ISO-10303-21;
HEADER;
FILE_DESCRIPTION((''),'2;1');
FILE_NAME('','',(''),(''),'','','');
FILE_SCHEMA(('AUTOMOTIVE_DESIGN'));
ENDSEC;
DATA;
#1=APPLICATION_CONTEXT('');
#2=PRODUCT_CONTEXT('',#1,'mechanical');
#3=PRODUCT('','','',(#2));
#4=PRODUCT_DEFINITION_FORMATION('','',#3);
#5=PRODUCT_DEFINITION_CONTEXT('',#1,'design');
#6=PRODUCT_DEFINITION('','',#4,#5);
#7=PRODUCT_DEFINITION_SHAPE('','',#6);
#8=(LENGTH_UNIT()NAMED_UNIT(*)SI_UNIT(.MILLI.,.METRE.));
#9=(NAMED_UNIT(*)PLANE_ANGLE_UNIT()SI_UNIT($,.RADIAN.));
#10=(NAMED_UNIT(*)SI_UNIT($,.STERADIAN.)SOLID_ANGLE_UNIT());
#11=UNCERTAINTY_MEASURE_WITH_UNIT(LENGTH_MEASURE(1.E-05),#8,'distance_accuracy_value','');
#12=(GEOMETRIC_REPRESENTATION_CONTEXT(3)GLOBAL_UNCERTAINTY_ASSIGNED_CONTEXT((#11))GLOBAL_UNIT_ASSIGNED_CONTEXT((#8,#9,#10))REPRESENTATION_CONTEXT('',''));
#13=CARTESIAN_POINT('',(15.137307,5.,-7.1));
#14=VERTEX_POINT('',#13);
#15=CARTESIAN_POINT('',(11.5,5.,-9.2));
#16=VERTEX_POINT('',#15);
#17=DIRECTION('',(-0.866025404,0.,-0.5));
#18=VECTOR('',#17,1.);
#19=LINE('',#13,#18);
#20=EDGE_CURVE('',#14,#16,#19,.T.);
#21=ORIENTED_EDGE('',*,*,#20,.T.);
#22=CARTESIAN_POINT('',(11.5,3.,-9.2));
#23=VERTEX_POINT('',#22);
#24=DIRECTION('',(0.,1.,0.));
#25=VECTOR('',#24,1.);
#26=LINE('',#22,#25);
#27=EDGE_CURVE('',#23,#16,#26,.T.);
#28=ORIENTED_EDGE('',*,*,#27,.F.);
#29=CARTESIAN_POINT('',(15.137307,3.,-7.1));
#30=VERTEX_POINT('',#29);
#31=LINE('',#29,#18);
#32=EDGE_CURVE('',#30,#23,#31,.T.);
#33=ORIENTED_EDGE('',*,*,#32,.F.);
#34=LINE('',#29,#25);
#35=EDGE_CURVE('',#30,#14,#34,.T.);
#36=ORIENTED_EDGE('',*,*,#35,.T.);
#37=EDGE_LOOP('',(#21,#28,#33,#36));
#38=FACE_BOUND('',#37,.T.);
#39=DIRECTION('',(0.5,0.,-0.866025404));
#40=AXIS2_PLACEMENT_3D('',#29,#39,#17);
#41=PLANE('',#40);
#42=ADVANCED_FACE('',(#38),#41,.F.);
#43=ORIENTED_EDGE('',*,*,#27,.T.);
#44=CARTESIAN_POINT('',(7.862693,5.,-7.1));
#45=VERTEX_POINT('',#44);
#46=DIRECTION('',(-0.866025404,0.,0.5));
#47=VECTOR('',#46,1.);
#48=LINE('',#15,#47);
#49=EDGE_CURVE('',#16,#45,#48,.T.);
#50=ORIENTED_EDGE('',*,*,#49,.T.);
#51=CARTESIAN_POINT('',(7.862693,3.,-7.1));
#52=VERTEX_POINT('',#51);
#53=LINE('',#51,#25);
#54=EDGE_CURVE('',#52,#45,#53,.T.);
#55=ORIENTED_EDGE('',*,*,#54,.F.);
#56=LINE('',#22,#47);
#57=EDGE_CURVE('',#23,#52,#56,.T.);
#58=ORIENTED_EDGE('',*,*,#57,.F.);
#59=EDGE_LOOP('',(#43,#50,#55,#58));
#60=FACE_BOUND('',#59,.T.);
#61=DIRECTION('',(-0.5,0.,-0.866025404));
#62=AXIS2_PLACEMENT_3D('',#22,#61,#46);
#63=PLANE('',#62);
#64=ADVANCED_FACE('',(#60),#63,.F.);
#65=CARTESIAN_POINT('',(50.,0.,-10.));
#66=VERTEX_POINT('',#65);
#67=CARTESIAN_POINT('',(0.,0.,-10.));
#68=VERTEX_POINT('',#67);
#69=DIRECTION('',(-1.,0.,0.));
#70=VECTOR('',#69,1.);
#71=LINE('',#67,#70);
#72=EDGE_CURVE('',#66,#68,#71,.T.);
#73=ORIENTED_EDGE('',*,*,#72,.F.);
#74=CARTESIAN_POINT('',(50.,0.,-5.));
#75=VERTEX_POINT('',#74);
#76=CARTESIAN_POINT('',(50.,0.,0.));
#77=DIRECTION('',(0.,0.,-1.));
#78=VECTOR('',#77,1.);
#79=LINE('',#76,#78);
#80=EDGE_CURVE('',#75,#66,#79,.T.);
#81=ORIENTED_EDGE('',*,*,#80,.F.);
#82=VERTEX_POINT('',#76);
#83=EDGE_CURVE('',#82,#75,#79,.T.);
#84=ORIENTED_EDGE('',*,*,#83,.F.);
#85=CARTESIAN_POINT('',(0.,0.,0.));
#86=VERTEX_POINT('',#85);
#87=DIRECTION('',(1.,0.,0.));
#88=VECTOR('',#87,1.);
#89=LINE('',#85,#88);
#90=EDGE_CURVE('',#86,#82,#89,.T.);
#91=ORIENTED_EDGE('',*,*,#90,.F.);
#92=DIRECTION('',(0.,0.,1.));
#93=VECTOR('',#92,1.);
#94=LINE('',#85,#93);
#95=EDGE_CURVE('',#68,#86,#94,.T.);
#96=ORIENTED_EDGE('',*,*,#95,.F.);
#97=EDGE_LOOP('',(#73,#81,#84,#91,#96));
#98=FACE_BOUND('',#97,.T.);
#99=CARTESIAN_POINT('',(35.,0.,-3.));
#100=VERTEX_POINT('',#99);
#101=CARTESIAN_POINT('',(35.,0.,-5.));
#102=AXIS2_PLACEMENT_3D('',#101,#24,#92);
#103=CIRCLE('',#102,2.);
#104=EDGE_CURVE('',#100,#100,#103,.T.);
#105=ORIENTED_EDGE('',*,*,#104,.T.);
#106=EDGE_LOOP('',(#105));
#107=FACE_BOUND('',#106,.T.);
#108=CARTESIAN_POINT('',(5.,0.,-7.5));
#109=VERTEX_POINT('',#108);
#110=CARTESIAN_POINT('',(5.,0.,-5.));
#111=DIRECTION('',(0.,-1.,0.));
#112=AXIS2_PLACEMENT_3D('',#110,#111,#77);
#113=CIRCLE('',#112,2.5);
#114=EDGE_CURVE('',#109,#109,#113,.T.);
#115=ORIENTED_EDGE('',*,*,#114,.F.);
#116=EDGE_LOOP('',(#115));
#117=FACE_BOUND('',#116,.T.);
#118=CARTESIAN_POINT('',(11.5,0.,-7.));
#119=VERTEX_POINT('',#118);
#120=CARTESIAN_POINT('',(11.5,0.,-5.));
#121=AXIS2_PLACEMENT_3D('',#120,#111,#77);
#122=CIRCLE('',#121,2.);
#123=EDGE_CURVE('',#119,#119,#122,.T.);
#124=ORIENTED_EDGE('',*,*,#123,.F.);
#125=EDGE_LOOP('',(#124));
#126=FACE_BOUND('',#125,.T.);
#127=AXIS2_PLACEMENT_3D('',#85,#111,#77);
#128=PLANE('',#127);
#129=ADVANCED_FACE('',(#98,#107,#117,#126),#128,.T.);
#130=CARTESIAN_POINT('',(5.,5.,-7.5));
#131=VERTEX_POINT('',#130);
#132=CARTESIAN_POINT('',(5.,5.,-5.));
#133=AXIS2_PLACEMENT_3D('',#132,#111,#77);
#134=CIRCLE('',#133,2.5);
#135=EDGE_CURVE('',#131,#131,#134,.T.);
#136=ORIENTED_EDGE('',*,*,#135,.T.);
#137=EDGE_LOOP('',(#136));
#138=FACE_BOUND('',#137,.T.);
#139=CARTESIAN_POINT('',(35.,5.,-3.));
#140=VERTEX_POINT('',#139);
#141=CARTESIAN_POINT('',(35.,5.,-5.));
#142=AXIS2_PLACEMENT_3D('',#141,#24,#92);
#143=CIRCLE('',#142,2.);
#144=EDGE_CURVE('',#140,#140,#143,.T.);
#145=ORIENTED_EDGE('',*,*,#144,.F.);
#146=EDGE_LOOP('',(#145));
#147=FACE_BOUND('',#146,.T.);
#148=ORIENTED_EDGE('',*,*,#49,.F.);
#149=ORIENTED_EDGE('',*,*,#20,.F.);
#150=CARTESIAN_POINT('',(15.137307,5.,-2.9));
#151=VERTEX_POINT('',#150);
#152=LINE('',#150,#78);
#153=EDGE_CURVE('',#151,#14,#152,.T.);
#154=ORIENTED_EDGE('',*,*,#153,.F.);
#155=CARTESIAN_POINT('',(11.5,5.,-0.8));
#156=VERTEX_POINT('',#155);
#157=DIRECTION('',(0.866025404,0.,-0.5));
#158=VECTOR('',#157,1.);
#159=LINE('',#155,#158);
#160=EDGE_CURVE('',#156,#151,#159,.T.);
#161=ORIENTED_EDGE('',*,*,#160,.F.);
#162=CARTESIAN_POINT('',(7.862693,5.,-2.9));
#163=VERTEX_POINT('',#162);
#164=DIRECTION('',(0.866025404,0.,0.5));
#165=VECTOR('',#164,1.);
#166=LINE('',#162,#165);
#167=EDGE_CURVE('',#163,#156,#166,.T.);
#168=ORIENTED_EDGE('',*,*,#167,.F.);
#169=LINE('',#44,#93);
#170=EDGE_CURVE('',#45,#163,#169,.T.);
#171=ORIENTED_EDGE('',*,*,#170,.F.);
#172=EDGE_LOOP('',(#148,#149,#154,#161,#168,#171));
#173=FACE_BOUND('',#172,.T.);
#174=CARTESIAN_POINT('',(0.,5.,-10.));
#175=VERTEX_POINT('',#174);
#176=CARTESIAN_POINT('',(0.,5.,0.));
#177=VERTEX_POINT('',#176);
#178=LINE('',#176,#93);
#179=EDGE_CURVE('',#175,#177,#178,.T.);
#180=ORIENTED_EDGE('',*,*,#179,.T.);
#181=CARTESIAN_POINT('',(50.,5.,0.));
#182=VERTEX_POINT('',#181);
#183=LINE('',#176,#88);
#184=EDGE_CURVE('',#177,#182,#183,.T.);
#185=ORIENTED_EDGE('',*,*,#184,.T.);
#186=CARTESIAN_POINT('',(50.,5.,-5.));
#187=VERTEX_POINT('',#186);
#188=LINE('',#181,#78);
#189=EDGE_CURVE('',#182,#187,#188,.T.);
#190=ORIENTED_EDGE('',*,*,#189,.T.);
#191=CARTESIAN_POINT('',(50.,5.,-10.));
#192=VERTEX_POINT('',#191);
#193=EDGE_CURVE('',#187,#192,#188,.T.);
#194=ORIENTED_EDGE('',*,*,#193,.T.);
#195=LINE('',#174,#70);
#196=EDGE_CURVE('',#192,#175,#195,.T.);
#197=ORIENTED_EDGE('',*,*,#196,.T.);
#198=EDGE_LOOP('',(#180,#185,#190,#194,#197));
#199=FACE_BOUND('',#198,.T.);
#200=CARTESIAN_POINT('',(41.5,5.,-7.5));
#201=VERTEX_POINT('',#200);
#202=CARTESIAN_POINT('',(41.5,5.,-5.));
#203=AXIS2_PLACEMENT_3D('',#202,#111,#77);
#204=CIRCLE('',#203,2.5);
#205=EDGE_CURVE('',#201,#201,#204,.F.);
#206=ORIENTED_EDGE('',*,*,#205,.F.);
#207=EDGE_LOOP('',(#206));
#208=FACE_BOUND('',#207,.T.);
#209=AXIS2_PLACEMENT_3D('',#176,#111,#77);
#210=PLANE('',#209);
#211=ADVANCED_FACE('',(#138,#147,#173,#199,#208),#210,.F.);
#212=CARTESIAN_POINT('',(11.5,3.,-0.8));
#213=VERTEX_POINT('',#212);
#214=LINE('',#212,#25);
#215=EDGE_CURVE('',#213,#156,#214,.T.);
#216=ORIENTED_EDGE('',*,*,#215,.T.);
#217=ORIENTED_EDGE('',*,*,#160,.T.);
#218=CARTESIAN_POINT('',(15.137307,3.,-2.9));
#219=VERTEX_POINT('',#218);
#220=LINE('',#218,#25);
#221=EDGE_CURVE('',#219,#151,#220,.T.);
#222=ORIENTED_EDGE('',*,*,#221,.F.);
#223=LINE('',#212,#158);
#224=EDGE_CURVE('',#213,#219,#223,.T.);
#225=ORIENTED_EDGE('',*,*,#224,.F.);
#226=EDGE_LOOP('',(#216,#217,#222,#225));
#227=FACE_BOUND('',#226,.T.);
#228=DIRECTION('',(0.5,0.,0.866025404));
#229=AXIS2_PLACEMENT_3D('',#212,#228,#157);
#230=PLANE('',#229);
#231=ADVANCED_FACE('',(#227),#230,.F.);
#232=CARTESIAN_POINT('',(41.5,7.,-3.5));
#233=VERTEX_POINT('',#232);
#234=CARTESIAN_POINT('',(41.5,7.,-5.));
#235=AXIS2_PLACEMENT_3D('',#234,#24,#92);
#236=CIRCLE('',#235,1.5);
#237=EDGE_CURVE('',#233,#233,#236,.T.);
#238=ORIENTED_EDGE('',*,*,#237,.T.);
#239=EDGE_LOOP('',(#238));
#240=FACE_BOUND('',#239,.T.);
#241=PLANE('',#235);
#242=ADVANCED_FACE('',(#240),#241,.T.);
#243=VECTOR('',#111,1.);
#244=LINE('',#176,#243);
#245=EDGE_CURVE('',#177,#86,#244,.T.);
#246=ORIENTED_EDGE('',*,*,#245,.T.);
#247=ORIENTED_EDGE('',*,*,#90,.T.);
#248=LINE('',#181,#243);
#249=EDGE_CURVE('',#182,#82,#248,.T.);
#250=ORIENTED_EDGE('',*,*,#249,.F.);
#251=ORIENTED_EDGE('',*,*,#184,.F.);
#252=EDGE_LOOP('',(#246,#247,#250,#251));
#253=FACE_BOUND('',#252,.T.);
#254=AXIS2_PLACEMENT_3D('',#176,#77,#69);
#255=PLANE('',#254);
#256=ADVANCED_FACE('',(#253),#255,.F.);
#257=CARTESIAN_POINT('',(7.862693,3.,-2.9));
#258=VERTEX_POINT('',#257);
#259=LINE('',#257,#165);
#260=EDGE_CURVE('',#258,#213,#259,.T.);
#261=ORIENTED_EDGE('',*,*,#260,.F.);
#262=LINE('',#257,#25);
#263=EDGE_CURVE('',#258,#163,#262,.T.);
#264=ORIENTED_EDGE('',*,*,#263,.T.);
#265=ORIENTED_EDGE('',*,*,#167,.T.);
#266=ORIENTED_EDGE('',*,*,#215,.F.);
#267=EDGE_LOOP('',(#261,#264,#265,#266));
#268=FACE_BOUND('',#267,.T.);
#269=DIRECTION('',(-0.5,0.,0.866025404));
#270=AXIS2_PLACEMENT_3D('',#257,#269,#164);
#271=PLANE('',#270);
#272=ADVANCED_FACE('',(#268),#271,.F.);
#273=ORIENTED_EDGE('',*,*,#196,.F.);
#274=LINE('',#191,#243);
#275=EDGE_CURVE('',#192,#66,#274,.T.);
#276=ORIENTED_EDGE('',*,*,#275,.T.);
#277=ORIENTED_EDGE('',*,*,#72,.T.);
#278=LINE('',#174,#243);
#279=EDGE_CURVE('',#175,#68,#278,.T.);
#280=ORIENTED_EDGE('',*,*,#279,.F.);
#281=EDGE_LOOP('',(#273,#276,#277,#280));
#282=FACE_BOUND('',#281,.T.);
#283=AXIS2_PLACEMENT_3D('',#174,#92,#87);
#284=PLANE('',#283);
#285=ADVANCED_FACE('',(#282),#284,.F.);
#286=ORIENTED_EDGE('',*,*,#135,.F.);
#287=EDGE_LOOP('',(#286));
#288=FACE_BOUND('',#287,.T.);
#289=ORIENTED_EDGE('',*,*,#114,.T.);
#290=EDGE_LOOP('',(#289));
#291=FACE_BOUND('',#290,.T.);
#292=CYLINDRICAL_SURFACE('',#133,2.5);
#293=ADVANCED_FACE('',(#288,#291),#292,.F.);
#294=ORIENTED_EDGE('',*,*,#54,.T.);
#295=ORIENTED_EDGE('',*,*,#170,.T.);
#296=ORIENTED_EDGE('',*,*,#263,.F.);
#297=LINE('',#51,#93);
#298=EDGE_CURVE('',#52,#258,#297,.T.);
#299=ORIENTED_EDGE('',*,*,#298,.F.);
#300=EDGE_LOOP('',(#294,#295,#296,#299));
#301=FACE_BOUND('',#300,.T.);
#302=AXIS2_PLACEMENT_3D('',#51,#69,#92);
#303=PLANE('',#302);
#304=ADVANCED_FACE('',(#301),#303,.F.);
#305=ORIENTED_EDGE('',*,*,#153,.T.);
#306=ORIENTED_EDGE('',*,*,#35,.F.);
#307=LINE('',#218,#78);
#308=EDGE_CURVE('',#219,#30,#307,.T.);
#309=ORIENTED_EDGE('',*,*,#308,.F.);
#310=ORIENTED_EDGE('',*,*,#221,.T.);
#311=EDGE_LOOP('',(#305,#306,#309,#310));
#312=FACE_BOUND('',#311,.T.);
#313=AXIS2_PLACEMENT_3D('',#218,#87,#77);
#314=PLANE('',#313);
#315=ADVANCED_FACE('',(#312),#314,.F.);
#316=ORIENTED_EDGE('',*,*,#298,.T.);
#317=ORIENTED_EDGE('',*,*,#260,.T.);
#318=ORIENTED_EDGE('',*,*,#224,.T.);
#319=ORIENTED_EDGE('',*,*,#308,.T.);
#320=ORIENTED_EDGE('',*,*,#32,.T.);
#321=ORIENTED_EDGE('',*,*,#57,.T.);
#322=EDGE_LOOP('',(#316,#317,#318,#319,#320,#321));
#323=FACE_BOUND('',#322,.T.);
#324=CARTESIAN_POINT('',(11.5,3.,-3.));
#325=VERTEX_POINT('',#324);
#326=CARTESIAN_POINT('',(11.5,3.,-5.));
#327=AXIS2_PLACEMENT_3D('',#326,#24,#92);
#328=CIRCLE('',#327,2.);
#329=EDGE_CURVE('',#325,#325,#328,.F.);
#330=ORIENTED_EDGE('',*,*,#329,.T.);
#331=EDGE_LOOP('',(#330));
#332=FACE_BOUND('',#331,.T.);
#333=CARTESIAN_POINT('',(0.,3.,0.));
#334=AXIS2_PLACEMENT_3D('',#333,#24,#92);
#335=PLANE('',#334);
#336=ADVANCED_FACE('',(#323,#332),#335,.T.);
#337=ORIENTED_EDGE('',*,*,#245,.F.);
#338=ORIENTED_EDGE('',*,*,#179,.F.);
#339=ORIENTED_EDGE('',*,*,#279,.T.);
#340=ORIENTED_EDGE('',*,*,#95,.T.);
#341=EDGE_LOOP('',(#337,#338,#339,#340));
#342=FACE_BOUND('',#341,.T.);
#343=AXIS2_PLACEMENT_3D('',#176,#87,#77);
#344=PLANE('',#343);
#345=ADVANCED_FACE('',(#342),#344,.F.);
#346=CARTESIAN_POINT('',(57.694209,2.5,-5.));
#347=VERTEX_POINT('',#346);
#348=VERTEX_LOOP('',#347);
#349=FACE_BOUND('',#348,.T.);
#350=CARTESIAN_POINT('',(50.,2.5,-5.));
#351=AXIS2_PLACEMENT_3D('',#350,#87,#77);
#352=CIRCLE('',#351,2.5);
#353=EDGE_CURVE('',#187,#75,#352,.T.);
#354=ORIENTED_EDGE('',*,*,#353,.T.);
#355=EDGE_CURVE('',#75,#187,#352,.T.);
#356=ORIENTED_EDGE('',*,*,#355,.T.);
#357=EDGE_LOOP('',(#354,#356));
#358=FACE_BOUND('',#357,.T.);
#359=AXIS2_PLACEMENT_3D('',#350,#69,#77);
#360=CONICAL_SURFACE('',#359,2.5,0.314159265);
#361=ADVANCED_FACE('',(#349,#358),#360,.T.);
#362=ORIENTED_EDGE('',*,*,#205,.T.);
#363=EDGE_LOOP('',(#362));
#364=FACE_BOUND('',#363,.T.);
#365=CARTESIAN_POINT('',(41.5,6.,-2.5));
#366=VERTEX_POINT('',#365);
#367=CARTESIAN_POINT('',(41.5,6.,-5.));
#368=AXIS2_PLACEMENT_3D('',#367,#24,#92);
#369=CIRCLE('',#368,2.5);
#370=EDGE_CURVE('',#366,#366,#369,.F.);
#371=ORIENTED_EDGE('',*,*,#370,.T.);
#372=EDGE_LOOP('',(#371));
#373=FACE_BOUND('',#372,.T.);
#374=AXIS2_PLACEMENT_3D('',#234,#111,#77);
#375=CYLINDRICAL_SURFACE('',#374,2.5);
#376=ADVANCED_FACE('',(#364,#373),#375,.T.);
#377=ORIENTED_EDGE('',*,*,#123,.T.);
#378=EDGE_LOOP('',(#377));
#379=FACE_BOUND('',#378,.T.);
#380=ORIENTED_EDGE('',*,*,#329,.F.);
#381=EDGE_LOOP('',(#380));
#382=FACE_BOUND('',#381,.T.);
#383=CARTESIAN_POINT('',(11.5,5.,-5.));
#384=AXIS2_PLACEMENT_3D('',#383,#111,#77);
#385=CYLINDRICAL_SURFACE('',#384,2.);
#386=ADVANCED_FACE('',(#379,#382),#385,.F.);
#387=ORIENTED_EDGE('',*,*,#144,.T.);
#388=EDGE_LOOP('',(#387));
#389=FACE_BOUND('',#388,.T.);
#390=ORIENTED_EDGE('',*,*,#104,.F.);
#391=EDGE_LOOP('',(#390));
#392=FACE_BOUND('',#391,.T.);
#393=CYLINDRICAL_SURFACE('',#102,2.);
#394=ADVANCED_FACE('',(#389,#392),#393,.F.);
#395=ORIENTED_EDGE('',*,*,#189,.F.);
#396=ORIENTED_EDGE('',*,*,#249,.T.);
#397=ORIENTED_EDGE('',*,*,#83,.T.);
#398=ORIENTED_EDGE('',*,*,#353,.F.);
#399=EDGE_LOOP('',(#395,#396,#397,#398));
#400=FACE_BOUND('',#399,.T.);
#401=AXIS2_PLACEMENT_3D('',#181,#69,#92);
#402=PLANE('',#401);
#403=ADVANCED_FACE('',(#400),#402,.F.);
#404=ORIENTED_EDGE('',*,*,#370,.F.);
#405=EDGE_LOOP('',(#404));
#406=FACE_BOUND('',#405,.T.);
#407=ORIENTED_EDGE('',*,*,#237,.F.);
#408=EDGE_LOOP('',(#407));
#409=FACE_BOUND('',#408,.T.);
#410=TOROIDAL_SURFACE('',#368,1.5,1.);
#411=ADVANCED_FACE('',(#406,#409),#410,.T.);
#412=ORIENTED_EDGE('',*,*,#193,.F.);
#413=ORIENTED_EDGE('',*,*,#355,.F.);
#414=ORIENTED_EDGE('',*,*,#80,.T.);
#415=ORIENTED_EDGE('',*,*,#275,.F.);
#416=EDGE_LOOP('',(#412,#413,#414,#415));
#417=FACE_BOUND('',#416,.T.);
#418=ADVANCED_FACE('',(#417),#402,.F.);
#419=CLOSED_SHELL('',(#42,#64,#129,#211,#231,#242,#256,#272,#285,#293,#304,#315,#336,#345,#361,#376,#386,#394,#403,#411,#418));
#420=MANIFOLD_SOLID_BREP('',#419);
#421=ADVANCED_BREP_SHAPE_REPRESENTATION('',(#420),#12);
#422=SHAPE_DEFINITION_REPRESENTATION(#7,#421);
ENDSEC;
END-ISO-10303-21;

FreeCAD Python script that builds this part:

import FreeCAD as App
import Part
import Sketcher

V = App.Vector
Q = App.Units.Quantity


def edges_at(feature, points):
    """Names of the edges that pass closest to the given points."""
    edges = feature.Shape.Edges
    near = lambda p: min(range(len(edges)), key=lambda i: edges[i].distToShape(Part.Vertex(*p))[0])
    return sorted({f"Edge{near(p) + 1}" for p in points})


def add_polygon(sketch, points):
    """Adds a closed chain of lines whose ends are joined by coincident constraints."""
    first, n = sketch.GeometryCount, len(points)
    for a, b in zip(points, points[1:] + points[:1]):
        sketch.addGeometry(Part.LineSegment(App.Vector(*a, 0), App.Vector(*b, 0)), False)
    for i in range(n):
        sketch.addConstraint(Sketcher.Constraint("Coincident", first + i, 2, first + (i + 1) % n, 1))

doc = App.newDocument("Part")
params = doc.addObject("Spreadsheet::Sheet", "Params")
for row, (alias, value) in enumerate([
    ("sketch1_width", "50 mm"),
    ("sketch1_height", "10 mm"),
    ("pad1_length", "5 mm"),
    ("sketch2_diameter", "5 mm"),
    ("sketch2_diameter2", "4 mm"),
    ("pocket1_length", "5 mm"),
    ("sketch3_diameter", "4 mm"),
    ("pocket2_length", "5 mm"),
    ("sketch4_height", "4.2 mm"),
    ("sketch4_length", "4.2 mm"),
    ("pocket3_length", "2 mm"),
    ("sketch5_diameter", "5 mm"),
    ("pad2_length", "2 mm"),
    ("fillet_radius", "1 mm"),
    ("sketch6_height", "2.5 mm"),
    ("revolution_angle", "360 deg"),
], start=1):
    params.set(f"A{row}", alias)
    params.set(f"B{row}", "=" + value)
    params.setAlias(f"B{row}", alias)

body = doc.addObject("PartDesign::Body", "Body")

sketch1 = doc.addObject("Sketcher::SketchObject", "Sketch")
body.addObject(sketch1)
sketch1.AttachmentSupport = (doc.XZ_Plane, [""])
sketch1.MapMode = "FlatFace"
add_polygon(sketch1, [(0, -10), (0, 0), (50, 0), (50, -10)])
sketch1.addConstraint([
    Sketcher.Constraint("Vertical", 0),
    Sketcher.Constraint("Horizontal", 1),
    Sketcher.Constraint("Vertical", 2),
    Sketcher.Constraint("Horizontal", 3),
    Sketcher.Constraint("Coincident", 0, 2, -1, 1),
    Sketcher.Constraint("DistanceX", 1, 1, 1, 2, 50.0),
    Sketcher.Constraint("DistanceY", 0, 1, 0, 2, 10.0),
])
sketch1.setExpression("Constraints[9]", "Params.sketch1_width")
sketch1.setExpression("Constraints[10]", "Params.sketch1_height")
pad1 = doc.addObject("PartDesign::Pad", "Pad")
body.addObject(pad1)
pad1.Profile = sketch1
pad1.setExpression("Length", "Params.pad1_length")
pad1.Reversed = True

sketch2 = doc.addObject("Sketcher::SketchObject", "Sketch001")
body.addObject(sketch2)
sketch2.AttachmentSupport = (doc.XZ_Plane, [""])
sketch2.MapMode = "FlatFace"
sketch2.addGeometry([
    Part.Circle(V(5, -5, 0), V(0, 0, 1), 2.5),
    Part.Circle(V(11.5, -5, 0), V(0, 0, 1), 2),
], False)
sketch2.addConstraint([
    Sketcher.Constraint("Horizontal", 0, 3, 1, 3),
    Sketcher.Constraint("Diameter", 0, 5.0),
    Sketcher.Constraint("Diameter", 1, 4.0),
    Sketcher.Constraint("DistanceX", -1, 1, 0, 3, 5.0),
    Sketcher.Constraint("DistanceY", 0, 3, -1, 1, 5.0),
    Sketcher.Constraint("DistanceX", -1, 1, 1, 3, 11.5),
])
sketch2.setExpression("Constraints[1]", "Params.sketch2_diameter")
sketch2.setExpression("Constraints[2]", "Params.sketch2_diameter2")
pocket1 = doc.addObject("PartDesign::Pocket", "Pocket")
body.addObject(pocket1)
pocket1.Profile = sketch2
pocket1.setExpression("Length", "Params.pocket1_length")

sketch3 = doc.addObject("Sketcher::SketchObject", "Sketch002")
body.addObject(sketch3)
sketch3.AttachmentSupport = (doc.XZ_Plane, [""])
sketch3.MapMode = "FlatFace"
sketch3.AttachmentOffset = App.Placement(V(0, 0, -5), App.Rotation())
sketch3.addGeometry(Part.Circle(V(35, -5, 0), V(0, 0, 1), 2), False)
sketch3.addConstraint([
    Sketcher.Constraint("Diameter", 0, 4.0),
    Sketcher.Constraint("DistanceX", -1, 1, 0, 3, 35.0),
    Sketcher.Constraint("DistanceY", 0, 3, -1, 1, 5.0),
])
sketch3.setExpression("Constraints[0]", "Params.sketch3_diameter")
pocket2 = doc.addObject("PartDesign::Pocket", "Pocket001")
body.addObject(pocket2)
pocket2.Profile = sketch3
pocket2.setExpression("Length", "Params.pocket2_length")
pocket2.Reversed = True

sketch4 = doc.addObject("Sketcher::SketchObject", "Sketch003")
body.addObject(sketch4)
sketch4.AttachmentSupport = (doc.XZ_Plane, [""])
sketch4.MapMode = "FlatFace"
sketch4.AttachmentOffset = App.Placement(V(0, 0, -5), App.Rotation())
add_polygon(sketch4, [(11.5, -0.8), (15.137307, -2.9), (15.137307, -7.1), (11.5, -9.2), (7.862693, -7.1), (7.862693, -2.9)])
sketch4.addConstraint([
    Sketcher.Constraint("Vertical", 1),
    Sketcher.Constraint("Vertical", 4),
    Sketcher.Constraint("Parallel", 0, 3),
    Sketcher.Constraint("Parallel", 2, 5),
    Sketcher.Constraint("Horizontal", 1, 2, 3, 2),
    Sketcher.Constraint("Horizontal", 0, 2, 4, 2),
    Sketcher.Constraint("Vertical", 2, 2, 5, 2),
    Sketcher.Constraint("Angle", 0, Q("-30 deg")),
    Sketcher.Constraint("DistanceY", 1, 2, 1, 1, 4.2),
    Sketcher.Constraint("Distance", 0, 4.2),
    Sketcher.Constraint("DistanceY", 0, 2, -1, 1, 2.9),
    Sketcher.Constraint("DistanceX", -1, 1, 2, 2, 11.5),
])
sketch4.setExpression("Constraints[14]", "Params.sketch4_height")
sketch4.setExpression("Constraints[15]", "Params.sketch4_length")
pocket3 = doc.addObject("PartDesign::Pocket", "Pocket002")
body.addObject(pocket3)
pocket3.Profile = sketch4
pocket3.setExpression("Length", "Params.pocket3_length")
pocket3.Reversed = True

sketch5 = doc.addObject("Sketcher::SketchObject", "Sketch004")
body.addObject(sketch5)
sketch5.AttachmentSupport = (doc.XZ_Plane, [""])
sketch5.MapMode = "FlatFace"
sketch5.AttachmentOffset = App.Placement(V(0, 0, -5), App.Rotation())
sketch5.addGeometry(Part.Circle(V(41.5, -5, 0), V(0, 0, 1), 2.5), False)
sketch5.addConstraint([
    Sketcher.Constraint("Diameter", 0, 5.0),
    Sketcher.Constraint("DistanceY", 0, 3, -1, 1, 5.0),
    Sketcher.Constraint("DistanceX", -1, 1, 0, 3, 41.5),
])
sketch5.setExpression("Constraints[0]", "Params.sketch5_diameter")
pad2 = doc.addObject("PartDesign::Pad", "Pad001")
body.addObject(pad2)
pad2.Profile = sketch5
pad2.setExpression("Length", "Params.pad2_length")
pad2.Reversed = True
doc.recompute()

fillet = doc.addObject("PartDesign::Fillet", "Fillet")
body.addObject(fillet)
fillet.Base = (pad2, edges_at(pad2, [(41.5, 7, -2.5)]))
fillet.setExpression("Radius", "Params.fillet_radius")

sketch6 = doc.addObject("Sketcher::SketchObject", "Sketch005")
body.addObject(sketch6)
sketch6.AttachmentSupport = (doc.XZ_Plane, [""])
sketch6.MapMode = "FlatFace"
sketch6.AttachmentOffset = App.Placement(V(0, 0, -2.5), App.Rotation())
add_polygon(sketch6, [(50, -5), (50, -2.5), (57.694209, -5)])
sketch6.addGeometry(Part.LineSegment(V(50, -5, 0), V(57.694209, -5, 0)), True)
sketch6.addConstraint([
    Sketcher.Constraint("Vertical", 0),
    Sketcher.Constraint("Horizontal", 2),
    Sketcher.Constraint("Horizontal", 3),
    Sketcher.Constraint("Coincident", 3, 1, 2, 2),
    Sketcher.Constraint("Equal", 2, 3),
    Sketcher.Constraint("Angle", 1, Q("-18 deg")),
    Sketcher.Constraint("DistanceY", 0, 1, 0, 2, 2.5),
    Sketcher.Constraint("DistanceX", -1, 1, 0, 2, 50.0),
    Sketcher.Constraint("DistanceY", 1, 2, -1, 1, 5.0),
])
sketch6.setExpression("Constraints[9]", "Params.sketch6_height")
revolution = doc.addObject("PartDesign::Revolution", "Revolution")
body.addObject(revolution)
revolution.Profile = sketch6
revolution.ReferenceAxis = (sketch6, ["Axis0"])
revolution.setExpression("Angle", "Params.revolution_angle")

doc.recompute()
